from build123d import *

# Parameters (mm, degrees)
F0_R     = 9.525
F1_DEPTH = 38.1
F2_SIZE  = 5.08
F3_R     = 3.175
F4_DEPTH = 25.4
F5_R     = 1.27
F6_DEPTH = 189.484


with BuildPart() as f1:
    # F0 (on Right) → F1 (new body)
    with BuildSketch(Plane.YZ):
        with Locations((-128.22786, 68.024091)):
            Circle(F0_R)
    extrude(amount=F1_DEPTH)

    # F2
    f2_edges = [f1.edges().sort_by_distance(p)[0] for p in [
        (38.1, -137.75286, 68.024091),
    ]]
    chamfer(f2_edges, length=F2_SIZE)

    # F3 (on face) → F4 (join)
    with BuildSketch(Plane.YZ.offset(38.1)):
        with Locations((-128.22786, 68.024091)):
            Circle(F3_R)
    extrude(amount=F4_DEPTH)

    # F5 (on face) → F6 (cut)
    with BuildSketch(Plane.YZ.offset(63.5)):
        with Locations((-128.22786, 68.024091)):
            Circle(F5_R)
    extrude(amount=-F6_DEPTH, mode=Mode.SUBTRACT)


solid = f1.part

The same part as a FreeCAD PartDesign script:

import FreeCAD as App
import Part
import Sketcher
from FreeCAD import Vector
Q = App.Units.Quantity


def edges_at(feature, points):
    """Names of the edges that pass closest to the given points."""
    edges = feature.Shape.Edges
    near = lambda p: min(range(len(edges)), key=lambda i: edges[i].distToShape(Part.Vertex(*p))[0])
    return sorted({f"Edge{near(p) + 1}" for p in points})

doc = App.newDocument("Part")
body = doc.addObject("PartDesign::Body", "Body")

# Sketch on YZ plane
sketch1 = doc.addObject("Sketcher::SketchObject", "Sketch")
body.addObject(sketch1)
sketch1.AttachmentSupport = (doc.YZ_Plane, [""])
sketch1.MapMode = "FlatFace"
sketch1.addGeometry(Part.Circle(Vector(-128, 68, 0), Vector(0, 0, 1), 10), False)
sketch1.addConstraint(Sketcher.Constraint("Diameter", 0, Q("0.75 in")))
sketch1.addConstraint(Sketcher.Constraint("DistanceX", 0, 3, -1, 1, Q("128.22786 mm")))
sketch1.addConstraint(Sketcher.Constraint("DistanceY", -1, 1, 0, 3, Q("68.024091 mm")))
pad1 = doc.addObject("PartDesign::Pad", "Pad")
body.addObject(pad1)
pad1.Profile = sketch1
pad1.Length = Q("1.5 in")
doc.recompute()

chamfer = doc.addObject("PartDesign::Chamfer", "Chamfer")
body.addObject(chamfer)
chamfer.Base = (pad1, edges_at(pad1, [(38.1, -137.753, 68.024)]))
chamfer.Size = Q("0.2 in")

# Sketch on YZ plane
sketch2 = doc.addObject("Sketcher::SketchObject", "Sketch001")
body.addObject(sketch2)
sketch2.AttachmentSupport = (doc.YZ_Plane, [""])
sketch2.MapMode = "FlatFace"
sketch2.AttachmentOffset = App.Placement(Vector(0, 0, 1.5 * 25.4), App.Rotation())
sketch2.addGeometry(Part.Circle(Vector(-128.2, 68, 0), Vector(0, 0, 1), 3.2), False)
sketch2.addConstraint(Sketcher.Constraint("Diameter", 0, Q("0.25 in")))
sketch2.addConstraint(Sketcher.Constraint("DistanceX", 0, 3, -1, 1, Q("128.22786 mm")))
sketch2.addConstraint(Sketcher.Constraint("DistanceY", -1, 1, 0, 3, Q("68.024091 mm")))
pad2 = doc.addObject("PartDesign::Pad", "Pad001")
body.addObject(pad2)
pad2.Profile = sketch2
pad2.Length = Q("1 in")

# Sketch on YZ plane
sketch3 = doc.addObject("Sketcher::SketchObject", "Sketch002")
body.addObject(sketch3)
sketch3.AttachmentSupport = (doc.YZ_Plane, [""])
sketch3.MapMode = "FlatFace"
sketch3.AttachmentOffset = App.Placement(Vector(0, 0, 2.5 * 25.4), App.Rotation())
sketch3.addGeometry(Part.Circle(Vector(-128.2, 68, 0), Vector(0, 0, 1), 1.3), False)
sketch3.addConstraint(Sketcher.Constraint("Diameter", 0, Q("0.1 in")))
sketch3.addConstraint(Sketcher.Constraint("DistanceX", 0, 3, -1, 1, Q("128.22786 mm")))
sketch3.addConstraint(Sketcher.Constraint("DistanceY", -1, 1, 0, 3, Q("68.024091 mm")))
pocket1 = doc.addObject("PartDesign::Pocket", "Pocket")
body.addObject(pocket1)
pocket1.Profile = sketch3
pocket1.Length = Q("7.46 in")

doc.recompute()
